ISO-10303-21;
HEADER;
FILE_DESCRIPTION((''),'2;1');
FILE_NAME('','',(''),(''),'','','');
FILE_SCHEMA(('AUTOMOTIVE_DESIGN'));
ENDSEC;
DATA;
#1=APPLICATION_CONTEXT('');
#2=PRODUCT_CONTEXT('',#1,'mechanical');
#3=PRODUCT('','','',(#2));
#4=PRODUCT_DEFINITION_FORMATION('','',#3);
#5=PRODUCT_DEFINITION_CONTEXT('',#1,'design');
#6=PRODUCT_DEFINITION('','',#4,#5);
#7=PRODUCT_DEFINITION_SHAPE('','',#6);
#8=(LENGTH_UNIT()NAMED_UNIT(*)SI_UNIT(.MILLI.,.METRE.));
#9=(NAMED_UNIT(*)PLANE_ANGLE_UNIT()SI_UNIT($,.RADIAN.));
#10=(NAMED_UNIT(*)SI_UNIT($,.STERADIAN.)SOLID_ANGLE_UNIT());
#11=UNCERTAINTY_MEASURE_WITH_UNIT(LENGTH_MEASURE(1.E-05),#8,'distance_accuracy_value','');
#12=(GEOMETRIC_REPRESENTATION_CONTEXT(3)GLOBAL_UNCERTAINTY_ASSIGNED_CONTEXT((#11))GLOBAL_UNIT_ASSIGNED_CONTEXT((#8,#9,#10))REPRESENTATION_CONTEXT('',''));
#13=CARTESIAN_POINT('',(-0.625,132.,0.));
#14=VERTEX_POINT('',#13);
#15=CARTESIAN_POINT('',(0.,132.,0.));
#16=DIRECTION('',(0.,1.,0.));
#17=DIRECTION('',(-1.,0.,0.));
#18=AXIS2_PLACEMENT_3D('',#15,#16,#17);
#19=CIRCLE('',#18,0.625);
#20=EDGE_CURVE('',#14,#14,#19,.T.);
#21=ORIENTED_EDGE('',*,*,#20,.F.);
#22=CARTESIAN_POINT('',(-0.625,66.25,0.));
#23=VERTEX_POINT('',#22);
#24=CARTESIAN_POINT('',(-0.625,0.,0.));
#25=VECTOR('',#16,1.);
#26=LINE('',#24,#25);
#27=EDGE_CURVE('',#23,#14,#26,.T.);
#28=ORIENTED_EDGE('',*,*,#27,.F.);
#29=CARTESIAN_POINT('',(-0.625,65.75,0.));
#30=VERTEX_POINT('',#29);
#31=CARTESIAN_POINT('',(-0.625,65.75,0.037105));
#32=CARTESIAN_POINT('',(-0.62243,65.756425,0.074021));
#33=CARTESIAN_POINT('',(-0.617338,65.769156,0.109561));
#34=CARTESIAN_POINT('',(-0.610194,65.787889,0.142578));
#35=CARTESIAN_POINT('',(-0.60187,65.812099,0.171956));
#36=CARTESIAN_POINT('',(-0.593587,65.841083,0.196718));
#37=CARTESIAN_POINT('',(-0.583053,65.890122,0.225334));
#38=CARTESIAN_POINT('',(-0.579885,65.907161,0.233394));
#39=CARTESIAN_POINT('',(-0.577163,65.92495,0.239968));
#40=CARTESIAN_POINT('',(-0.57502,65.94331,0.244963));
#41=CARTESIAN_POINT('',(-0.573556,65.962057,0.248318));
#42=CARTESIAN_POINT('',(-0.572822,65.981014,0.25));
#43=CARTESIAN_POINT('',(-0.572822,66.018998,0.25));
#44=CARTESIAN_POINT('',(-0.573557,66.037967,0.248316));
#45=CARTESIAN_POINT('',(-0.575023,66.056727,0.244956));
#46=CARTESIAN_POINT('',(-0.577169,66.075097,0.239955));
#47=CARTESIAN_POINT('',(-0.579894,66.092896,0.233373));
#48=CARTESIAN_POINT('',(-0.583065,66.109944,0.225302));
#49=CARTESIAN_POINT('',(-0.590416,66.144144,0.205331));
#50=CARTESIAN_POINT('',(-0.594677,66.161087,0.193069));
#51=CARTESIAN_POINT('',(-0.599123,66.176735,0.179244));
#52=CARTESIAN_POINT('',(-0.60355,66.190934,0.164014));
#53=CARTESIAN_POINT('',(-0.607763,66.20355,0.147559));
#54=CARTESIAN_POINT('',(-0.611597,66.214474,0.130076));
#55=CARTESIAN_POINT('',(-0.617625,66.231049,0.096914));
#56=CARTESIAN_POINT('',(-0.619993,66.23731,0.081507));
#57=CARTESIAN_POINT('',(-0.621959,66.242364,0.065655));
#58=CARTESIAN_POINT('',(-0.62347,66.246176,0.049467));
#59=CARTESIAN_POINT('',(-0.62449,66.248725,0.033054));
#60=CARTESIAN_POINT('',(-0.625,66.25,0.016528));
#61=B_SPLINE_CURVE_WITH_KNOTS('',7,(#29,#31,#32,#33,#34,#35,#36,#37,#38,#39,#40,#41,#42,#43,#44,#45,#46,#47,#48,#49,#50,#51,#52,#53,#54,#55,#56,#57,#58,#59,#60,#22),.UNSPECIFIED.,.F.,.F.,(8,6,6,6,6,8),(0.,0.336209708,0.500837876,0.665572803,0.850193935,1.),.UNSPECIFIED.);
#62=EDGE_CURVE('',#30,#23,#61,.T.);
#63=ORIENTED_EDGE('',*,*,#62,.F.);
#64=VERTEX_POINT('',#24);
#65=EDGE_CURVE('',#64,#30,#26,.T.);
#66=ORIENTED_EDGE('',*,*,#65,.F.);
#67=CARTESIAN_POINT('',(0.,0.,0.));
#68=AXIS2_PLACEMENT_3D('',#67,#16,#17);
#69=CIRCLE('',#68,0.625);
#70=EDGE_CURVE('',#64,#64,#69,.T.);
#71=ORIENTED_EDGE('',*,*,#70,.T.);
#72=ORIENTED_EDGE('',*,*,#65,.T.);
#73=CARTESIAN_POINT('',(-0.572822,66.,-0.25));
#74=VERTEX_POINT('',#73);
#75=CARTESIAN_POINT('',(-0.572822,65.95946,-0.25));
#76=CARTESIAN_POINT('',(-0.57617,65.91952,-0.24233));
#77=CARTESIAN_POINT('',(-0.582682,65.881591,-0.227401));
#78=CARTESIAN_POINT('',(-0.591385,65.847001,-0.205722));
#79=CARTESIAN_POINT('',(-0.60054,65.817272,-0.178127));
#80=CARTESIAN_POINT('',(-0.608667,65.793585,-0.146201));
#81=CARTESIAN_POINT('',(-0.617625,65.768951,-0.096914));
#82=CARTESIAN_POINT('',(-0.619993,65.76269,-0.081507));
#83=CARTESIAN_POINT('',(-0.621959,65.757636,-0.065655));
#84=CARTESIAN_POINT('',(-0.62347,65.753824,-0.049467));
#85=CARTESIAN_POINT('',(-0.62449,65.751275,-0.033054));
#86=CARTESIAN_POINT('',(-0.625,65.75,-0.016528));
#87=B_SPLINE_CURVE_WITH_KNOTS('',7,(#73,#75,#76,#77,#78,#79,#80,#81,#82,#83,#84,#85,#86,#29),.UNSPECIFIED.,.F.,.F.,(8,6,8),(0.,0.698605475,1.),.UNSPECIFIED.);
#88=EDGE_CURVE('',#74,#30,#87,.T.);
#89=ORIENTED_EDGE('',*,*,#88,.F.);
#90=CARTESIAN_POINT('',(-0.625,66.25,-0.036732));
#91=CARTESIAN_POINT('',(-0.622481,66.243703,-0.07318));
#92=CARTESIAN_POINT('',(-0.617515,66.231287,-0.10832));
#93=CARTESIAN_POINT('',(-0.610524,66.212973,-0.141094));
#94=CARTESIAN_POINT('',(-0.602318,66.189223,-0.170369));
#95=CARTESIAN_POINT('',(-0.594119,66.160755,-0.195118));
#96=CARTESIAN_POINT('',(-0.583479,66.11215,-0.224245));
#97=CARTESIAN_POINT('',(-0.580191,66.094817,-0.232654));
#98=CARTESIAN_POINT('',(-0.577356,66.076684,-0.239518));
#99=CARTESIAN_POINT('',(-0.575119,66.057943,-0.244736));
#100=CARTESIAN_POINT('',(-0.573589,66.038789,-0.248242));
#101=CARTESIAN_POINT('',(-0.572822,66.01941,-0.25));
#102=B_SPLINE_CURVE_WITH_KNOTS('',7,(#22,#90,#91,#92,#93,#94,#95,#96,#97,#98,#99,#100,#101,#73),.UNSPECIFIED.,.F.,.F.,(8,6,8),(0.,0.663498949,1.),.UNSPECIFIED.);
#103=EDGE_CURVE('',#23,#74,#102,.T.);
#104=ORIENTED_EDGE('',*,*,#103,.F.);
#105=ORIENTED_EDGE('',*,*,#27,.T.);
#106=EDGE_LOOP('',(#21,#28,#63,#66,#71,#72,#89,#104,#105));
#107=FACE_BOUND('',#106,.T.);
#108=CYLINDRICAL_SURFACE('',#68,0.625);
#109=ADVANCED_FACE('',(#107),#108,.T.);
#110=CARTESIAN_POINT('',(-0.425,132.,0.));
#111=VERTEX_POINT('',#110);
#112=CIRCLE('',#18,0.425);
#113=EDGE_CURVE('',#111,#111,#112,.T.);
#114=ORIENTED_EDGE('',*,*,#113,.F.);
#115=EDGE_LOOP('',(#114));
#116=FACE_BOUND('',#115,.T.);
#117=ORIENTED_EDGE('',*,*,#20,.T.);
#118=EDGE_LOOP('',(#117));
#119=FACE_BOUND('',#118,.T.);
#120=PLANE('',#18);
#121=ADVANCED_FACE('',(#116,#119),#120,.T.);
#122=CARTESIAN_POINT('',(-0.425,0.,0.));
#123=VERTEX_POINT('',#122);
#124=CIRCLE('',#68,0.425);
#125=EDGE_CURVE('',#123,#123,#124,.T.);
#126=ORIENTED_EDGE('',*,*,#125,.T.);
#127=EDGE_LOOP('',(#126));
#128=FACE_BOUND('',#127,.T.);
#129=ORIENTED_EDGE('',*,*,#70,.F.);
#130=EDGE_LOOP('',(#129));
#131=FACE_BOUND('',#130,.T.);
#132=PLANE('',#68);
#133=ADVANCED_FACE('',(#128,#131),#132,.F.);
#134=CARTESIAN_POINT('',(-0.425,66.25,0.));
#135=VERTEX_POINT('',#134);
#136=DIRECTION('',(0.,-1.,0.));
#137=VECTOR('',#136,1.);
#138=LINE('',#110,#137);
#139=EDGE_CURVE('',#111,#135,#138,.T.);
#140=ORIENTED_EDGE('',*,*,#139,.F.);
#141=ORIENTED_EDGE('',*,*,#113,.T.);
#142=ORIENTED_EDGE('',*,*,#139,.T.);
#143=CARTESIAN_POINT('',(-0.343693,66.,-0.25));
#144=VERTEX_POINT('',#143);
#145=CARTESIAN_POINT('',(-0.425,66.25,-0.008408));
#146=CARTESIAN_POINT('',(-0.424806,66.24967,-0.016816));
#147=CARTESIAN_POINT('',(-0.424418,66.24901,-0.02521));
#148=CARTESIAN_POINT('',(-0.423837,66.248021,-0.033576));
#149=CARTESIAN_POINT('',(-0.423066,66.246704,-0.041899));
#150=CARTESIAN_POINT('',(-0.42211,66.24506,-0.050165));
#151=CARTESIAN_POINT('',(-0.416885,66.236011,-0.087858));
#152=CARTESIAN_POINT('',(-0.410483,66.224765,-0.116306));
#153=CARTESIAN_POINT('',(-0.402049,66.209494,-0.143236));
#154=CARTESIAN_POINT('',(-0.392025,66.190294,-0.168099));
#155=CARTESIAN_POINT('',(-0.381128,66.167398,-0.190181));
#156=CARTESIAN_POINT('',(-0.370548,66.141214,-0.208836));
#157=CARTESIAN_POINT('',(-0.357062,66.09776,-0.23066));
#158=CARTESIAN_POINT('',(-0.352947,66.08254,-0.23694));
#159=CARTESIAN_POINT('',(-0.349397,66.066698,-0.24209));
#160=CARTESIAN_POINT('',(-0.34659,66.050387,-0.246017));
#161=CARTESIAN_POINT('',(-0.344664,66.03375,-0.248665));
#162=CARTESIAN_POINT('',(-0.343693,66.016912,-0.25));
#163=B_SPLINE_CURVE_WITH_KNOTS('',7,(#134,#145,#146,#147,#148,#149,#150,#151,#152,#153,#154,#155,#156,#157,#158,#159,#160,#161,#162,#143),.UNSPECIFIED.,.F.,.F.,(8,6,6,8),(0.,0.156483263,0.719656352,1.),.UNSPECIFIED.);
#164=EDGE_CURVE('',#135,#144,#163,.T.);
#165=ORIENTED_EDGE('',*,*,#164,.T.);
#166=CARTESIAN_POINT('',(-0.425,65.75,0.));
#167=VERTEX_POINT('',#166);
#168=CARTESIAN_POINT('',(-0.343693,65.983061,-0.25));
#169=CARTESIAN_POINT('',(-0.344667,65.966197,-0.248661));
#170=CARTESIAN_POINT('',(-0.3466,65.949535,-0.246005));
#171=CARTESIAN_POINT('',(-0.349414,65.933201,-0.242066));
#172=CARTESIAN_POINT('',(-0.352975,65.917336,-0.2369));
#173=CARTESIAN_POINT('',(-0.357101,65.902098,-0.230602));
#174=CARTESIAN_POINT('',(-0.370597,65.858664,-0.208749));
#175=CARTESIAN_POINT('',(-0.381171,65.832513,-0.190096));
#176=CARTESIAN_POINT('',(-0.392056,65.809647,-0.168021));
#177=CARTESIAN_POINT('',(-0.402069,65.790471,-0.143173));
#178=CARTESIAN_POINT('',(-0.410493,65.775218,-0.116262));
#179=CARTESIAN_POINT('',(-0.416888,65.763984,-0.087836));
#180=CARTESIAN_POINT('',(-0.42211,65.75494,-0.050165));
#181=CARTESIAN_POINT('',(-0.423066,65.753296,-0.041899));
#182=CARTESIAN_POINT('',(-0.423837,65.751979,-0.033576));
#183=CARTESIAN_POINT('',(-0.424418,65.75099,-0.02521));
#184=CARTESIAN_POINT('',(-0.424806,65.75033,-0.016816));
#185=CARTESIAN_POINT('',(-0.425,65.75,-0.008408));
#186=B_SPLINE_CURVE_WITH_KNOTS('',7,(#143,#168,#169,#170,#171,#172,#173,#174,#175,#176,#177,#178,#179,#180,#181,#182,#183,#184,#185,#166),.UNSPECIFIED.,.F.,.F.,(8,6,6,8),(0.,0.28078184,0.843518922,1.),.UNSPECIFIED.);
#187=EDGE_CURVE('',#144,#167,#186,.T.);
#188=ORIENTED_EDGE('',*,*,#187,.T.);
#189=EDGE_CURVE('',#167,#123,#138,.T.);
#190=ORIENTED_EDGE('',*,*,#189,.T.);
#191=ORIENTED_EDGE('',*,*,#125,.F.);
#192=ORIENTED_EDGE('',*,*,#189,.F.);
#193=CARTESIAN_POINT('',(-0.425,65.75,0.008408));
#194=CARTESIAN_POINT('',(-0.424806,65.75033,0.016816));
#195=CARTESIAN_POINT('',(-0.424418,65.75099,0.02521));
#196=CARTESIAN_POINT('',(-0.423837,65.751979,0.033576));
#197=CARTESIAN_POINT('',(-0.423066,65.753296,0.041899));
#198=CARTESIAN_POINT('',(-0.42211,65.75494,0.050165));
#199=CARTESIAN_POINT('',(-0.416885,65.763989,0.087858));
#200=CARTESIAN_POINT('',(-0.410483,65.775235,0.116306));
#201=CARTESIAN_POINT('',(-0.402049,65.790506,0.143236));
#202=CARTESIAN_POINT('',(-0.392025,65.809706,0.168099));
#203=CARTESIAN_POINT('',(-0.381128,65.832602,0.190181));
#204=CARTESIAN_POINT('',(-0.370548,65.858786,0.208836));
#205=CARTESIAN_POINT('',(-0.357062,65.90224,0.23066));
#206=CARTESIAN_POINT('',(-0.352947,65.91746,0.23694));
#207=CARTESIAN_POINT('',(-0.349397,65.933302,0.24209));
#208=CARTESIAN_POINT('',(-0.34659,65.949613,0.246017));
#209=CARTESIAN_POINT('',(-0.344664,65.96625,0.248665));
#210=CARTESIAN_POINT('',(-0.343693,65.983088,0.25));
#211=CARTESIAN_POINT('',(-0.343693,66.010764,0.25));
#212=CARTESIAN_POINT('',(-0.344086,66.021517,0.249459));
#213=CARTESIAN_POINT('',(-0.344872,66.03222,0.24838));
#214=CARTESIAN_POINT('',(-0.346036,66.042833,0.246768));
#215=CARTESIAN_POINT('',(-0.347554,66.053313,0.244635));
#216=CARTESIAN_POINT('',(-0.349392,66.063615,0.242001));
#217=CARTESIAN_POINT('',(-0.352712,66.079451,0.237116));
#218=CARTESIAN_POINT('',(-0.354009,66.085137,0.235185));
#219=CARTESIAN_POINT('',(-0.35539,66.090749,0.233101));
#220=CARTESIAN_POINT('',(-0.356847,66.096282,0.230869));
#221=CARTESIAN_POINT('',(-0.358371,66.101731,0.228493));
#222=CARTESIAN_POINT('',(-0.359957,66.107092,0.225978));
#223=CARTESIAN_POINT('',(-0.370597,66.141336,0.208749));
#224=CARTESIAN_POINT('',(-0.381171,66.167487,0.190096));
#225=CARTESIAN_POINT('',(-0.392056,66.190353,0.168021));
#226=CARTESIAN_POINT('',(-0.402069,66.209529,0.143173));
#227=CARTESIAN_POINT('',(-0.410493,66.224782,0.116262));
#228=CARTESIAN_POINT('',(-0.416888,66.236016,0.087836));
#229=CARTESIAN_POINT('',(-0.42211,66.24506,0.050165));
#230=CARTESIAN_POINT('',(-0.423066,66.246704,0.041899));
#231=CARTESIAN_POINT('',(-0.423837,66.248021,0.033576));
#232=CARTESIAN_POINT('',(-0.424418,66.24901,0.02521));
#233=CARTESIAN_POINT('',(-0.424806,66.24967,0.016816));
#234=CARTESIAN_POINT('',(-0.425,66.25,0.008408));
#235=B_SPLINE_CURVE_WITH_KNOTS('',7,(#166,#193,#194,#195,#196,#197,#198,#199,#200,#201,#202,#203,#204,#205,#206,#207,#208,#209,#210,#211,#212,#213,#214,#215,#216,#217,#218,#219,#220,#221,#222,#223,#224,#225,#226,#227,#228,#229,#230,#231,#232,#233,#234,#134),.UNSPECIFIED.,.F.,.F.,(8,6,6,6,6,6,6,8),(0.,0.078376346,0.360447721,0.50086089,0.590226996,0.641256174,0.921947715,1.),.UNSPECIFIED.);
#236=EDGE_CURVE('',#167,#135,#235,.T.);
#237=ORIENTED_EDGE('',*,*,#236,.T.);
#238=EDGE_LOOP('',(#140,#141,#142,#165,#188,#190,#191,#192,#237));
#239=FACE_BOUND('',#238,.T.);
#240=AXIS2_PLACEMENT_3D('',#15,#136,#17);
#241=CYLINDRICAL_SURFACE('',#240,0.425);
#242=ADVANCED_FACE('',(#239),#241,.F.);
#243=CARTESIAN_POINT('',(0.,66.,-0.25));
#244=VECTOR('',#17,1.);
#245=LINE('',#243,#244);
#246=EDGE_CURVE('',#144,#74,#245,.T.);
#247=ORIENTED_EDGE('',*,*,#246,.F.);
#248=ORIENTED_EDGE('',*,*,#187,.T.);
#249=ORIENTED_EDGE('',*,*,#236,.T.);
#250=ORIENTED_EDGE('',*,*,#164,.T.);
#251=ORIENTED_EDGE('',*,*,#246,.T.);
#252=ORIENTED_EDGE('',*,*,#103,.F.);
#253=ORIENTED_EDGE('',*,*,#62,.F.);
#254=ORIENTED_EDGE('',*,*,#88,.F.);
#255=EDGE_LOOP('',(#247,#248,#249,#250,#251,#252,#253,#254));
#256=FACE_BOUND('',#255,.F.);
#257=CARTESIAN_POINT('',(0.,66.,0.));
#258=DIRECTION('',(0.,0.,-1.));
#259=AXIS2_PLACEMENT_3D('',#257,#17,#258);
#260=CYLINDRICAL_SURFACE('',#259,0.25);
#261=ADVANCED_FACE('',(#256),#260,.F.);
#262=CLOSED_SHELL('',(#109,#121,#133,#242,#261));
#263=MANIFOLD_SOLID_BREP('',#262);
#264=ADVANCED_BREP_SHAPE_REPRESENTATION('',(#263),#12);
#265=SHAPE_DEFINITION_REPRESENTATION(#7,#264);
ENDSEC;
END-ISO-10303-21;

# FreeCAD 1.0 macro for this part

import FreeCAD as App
import Part
import Sketcher
from FreeCAD import Vector

doc = App.newDocument("Part")
body = doc.addObject("PartDesign::Body", "Body")

sketch1 = body.newObject("Sketcher::SketchObject", "Sketch")
sketch1.AttachmentSupport = (doc.getObject("XY_Plane"), [""])
sketch1.MapMode = "FlatFace"
sketch1.addGeometry(Part.LineSegment(Vector(-0.62, 0, 0), Vector(-0.42, 0, 0)), False)
sketch1.addGeometry(Part.LineSegment(Vector(-0.42, 0, 0), Vector(-0.42, 132, 0)), False)
sketch1.addGeometry(Part.LineSegment(Vector(-0.42, 132, 0), Vector(-0.62, 132, 0)), False)
sketch1.addGeometry(Part.LineSegment(Vector(-0.62, 132, 0), Vector(-0.62, 0, 0)), False)
sketch1.addConstraint(Sketcher.Constraint("Coincident", 0, 2, 1, 1))
sketch1.addConstraint(Sketcher.Constraint("Coincident", 1, 2, 2, 1))
sketch1.addConstraint(Sketcher.Constraint("Coincident", 2, 2, 3, 1))
sketch1.addConstraint(Sketcher.Constraint("Coincident", 3, 2, 0, 1))
sketch1.addConstraint(Sketcher.Constraint("Horizontal", 0))
sketch1.addConstraint(Sketcher.Constraint("Vertical", 1))
sketch1.addConstraint(Sketcher.Constraint("Horizontal", 2))
sketch1.addConstraint(Sketcher.Constraint("Vertical", 3))
sketch1.addConstraint(Sketcher.Constraint("PointOnObject", 0, 2, -1))
sketch1.addConstraint(Sketcher.Constraint("DistanceY", 1, 1, 1, 2, 132.0))
sketch1.addConstraint(Sketcher.Constraint("DistanceX", 0, 1, 0, 2, 0.2))
sketch1.addConstraint(Sketcher.Constraint("DistanceX", 2, 2, -1, 1, 0.625))
revolution = body.newObject("PartDesign::Revolution", "Revolution")
revolution.Profile = sketch1
revolution.ReferenceAxis = (sketch1, ["V_Axis"])
revolution.Angle = 360

sketch2 = body.newObject("Sketcher::SketchObject", "Sketch001")
sketch2.AttachmentSupport = (doc.getObject("YZ_Plane"), [""])
sketch2.MapMode = "FlatFace"
sketch2.addGeometry(Part.Circle(Vector(66, 0, 0), Vector(0, 0, 1), 0.25), False)
sketch2.addConstraint(Sketcher.Constraint("PointOnObject", 0, 3, -1))
sketch2.addConstraint(Sketcher.Constraint("Diameter", 0, 0.5))
sketch2.addConstraint(Sketcher.Constraint("DistanceX", -1, 1, 0, 3, 66.0))
doc.recompute()
hole = body.newObject("PartDesign::Hole", "Hole")
hole.Profile = sketch2
hole.ThreadType = "None"
hole.Diameter = 0.5
hole.DepthType = "ThroughAll"

doc.recompute()
